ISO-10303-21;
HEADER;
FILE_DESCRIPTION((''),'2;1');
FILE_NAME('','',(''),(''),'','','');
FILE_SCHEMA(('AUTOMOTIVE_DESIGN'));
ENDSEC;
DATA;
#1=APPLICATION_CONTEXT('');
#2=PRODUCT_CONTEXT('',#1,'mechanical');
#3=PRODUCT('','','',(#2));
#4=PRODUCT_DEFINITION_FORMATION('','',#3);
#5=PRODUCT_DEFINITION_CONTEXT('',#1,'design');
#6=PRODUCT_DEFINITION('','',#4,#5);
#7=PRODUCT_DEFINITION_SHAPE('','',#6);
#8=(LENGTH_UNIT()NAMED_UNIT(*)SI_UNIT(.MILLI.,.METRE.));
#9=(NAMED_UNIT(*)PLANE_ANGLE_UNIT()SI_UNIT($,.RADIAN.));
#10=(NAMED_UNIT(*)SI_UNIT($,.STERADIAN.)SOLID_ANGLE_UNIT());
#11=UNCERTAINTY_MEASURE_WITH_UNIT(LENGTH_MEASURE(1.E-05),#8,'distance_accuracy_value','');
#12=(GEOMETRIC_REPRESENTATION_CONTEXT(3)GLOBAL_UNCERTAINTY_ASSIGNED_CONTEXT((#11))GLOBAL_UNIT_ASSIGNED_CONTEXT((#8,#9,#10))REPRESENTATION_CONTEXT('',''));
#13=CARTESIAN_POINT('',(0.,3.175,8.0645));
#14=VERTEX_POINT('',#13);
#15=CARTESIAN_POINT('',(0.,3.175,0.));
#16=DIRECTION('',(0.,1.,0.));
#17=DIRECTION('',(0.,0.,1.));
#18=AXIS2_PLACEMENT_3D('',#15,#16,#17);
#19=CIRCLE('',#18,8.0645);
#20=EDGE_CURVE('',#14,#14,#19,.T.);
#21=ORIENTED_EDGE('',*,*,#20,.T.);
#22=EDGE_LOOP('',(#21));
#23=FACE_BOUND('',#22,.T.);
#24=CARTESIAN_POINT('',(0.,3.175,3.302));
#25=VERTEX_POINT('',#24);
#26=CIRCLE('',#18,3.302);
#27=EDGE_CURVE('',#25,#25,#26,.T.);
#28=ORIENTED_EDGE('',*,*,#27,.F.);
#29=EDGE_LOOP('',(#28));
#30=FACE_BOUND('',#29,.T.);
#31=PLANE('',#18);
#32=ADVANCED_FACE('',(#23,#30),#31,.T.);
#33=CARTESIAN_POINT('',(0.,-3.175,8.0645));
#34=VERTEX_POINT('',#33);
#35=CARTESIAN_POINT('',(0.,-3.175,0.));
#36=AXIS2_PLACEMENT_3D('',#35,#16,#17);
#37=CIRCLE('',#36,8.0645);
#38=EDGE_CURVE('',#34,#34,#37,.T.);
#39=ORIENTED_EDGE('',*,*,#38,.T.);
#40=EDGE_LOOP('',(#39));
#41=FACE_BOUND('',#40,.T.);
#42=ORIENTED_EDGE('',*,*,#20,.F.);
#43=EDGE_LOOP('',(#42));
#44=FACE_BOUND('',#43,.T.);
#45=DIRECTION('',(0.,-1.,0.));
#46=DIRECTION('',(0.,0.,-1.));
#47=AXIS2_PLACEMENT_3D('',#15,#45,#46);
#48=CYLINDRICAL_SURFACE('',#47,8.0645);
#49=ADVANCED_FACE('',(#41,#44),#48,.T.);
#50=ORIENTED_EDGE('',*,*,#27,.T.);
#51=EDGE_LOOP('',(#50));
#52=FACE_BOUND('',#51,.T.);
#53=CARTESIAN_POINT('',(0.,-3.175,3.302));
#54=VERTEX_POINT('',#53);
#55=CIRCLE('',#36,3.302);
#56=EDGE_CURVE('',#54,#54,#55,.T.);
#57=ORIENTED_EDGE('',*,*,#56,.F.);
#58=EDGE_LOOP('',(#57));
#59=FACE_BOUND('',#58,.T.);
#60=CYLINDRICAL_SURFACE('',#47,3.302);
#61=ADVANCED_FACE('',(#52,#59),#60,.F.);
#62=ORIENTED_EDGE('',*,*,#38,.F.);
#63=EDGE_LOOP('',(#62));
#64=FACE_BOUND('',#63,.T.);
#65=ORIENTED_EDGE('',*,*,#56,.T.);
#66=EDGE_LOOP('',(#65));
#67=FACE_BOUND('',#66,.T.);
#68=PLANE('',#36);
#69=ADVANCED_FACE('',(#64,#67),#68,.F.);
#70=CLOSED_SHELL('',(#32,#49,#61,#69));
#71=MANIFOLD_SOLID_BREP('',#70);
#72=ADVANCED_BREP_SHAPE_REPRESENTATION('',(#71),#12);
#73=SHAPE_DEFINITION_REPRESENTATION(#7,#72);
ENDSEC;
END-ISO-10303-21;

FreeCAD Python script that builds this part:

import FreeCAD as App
import Part
import Sketcher

V = App.Vector
Q = App.Units.Quantity

doc = App.newDocument("Part")
body = doc.addObject("PartDesign::Body", "Body")

# Sketch on XZ plane
sketch1 = body.newObject("Sketcher::SketchObject", "Sketch")
sketch1.AttachmentSupport = (doc.getObject("XZ_Plane"), [""])
sketch1.MapMode = "FlatFace"
sketch1.addGeometry([
    Part.Circle(V(0, 0, 0), V(0, 0, 1), 8.0645),
    Part.Circle(V(0, 0, 0), V(0, 0, 1), 3.302),
], False)
sketch1.addConstraint([
    Sketcher.Constraint("Coincident", 0, 3, -1, 1),
    Sketcher.Constraint("Coincident", 1, 3, -1, 1),
    Sketcher.Constraint("Diameter", 1, Q("0.26 in")),
    Sketcher.Constraint("Diameter", 0, Q("0.635 in")),
])
pad1 = body.newObject("PartDesign::Pad", "Pad")
pad1.Profile = sketch1
pad1.Length = Q("0.25 in")
pad1.Midplane = True

doc.recompute()
